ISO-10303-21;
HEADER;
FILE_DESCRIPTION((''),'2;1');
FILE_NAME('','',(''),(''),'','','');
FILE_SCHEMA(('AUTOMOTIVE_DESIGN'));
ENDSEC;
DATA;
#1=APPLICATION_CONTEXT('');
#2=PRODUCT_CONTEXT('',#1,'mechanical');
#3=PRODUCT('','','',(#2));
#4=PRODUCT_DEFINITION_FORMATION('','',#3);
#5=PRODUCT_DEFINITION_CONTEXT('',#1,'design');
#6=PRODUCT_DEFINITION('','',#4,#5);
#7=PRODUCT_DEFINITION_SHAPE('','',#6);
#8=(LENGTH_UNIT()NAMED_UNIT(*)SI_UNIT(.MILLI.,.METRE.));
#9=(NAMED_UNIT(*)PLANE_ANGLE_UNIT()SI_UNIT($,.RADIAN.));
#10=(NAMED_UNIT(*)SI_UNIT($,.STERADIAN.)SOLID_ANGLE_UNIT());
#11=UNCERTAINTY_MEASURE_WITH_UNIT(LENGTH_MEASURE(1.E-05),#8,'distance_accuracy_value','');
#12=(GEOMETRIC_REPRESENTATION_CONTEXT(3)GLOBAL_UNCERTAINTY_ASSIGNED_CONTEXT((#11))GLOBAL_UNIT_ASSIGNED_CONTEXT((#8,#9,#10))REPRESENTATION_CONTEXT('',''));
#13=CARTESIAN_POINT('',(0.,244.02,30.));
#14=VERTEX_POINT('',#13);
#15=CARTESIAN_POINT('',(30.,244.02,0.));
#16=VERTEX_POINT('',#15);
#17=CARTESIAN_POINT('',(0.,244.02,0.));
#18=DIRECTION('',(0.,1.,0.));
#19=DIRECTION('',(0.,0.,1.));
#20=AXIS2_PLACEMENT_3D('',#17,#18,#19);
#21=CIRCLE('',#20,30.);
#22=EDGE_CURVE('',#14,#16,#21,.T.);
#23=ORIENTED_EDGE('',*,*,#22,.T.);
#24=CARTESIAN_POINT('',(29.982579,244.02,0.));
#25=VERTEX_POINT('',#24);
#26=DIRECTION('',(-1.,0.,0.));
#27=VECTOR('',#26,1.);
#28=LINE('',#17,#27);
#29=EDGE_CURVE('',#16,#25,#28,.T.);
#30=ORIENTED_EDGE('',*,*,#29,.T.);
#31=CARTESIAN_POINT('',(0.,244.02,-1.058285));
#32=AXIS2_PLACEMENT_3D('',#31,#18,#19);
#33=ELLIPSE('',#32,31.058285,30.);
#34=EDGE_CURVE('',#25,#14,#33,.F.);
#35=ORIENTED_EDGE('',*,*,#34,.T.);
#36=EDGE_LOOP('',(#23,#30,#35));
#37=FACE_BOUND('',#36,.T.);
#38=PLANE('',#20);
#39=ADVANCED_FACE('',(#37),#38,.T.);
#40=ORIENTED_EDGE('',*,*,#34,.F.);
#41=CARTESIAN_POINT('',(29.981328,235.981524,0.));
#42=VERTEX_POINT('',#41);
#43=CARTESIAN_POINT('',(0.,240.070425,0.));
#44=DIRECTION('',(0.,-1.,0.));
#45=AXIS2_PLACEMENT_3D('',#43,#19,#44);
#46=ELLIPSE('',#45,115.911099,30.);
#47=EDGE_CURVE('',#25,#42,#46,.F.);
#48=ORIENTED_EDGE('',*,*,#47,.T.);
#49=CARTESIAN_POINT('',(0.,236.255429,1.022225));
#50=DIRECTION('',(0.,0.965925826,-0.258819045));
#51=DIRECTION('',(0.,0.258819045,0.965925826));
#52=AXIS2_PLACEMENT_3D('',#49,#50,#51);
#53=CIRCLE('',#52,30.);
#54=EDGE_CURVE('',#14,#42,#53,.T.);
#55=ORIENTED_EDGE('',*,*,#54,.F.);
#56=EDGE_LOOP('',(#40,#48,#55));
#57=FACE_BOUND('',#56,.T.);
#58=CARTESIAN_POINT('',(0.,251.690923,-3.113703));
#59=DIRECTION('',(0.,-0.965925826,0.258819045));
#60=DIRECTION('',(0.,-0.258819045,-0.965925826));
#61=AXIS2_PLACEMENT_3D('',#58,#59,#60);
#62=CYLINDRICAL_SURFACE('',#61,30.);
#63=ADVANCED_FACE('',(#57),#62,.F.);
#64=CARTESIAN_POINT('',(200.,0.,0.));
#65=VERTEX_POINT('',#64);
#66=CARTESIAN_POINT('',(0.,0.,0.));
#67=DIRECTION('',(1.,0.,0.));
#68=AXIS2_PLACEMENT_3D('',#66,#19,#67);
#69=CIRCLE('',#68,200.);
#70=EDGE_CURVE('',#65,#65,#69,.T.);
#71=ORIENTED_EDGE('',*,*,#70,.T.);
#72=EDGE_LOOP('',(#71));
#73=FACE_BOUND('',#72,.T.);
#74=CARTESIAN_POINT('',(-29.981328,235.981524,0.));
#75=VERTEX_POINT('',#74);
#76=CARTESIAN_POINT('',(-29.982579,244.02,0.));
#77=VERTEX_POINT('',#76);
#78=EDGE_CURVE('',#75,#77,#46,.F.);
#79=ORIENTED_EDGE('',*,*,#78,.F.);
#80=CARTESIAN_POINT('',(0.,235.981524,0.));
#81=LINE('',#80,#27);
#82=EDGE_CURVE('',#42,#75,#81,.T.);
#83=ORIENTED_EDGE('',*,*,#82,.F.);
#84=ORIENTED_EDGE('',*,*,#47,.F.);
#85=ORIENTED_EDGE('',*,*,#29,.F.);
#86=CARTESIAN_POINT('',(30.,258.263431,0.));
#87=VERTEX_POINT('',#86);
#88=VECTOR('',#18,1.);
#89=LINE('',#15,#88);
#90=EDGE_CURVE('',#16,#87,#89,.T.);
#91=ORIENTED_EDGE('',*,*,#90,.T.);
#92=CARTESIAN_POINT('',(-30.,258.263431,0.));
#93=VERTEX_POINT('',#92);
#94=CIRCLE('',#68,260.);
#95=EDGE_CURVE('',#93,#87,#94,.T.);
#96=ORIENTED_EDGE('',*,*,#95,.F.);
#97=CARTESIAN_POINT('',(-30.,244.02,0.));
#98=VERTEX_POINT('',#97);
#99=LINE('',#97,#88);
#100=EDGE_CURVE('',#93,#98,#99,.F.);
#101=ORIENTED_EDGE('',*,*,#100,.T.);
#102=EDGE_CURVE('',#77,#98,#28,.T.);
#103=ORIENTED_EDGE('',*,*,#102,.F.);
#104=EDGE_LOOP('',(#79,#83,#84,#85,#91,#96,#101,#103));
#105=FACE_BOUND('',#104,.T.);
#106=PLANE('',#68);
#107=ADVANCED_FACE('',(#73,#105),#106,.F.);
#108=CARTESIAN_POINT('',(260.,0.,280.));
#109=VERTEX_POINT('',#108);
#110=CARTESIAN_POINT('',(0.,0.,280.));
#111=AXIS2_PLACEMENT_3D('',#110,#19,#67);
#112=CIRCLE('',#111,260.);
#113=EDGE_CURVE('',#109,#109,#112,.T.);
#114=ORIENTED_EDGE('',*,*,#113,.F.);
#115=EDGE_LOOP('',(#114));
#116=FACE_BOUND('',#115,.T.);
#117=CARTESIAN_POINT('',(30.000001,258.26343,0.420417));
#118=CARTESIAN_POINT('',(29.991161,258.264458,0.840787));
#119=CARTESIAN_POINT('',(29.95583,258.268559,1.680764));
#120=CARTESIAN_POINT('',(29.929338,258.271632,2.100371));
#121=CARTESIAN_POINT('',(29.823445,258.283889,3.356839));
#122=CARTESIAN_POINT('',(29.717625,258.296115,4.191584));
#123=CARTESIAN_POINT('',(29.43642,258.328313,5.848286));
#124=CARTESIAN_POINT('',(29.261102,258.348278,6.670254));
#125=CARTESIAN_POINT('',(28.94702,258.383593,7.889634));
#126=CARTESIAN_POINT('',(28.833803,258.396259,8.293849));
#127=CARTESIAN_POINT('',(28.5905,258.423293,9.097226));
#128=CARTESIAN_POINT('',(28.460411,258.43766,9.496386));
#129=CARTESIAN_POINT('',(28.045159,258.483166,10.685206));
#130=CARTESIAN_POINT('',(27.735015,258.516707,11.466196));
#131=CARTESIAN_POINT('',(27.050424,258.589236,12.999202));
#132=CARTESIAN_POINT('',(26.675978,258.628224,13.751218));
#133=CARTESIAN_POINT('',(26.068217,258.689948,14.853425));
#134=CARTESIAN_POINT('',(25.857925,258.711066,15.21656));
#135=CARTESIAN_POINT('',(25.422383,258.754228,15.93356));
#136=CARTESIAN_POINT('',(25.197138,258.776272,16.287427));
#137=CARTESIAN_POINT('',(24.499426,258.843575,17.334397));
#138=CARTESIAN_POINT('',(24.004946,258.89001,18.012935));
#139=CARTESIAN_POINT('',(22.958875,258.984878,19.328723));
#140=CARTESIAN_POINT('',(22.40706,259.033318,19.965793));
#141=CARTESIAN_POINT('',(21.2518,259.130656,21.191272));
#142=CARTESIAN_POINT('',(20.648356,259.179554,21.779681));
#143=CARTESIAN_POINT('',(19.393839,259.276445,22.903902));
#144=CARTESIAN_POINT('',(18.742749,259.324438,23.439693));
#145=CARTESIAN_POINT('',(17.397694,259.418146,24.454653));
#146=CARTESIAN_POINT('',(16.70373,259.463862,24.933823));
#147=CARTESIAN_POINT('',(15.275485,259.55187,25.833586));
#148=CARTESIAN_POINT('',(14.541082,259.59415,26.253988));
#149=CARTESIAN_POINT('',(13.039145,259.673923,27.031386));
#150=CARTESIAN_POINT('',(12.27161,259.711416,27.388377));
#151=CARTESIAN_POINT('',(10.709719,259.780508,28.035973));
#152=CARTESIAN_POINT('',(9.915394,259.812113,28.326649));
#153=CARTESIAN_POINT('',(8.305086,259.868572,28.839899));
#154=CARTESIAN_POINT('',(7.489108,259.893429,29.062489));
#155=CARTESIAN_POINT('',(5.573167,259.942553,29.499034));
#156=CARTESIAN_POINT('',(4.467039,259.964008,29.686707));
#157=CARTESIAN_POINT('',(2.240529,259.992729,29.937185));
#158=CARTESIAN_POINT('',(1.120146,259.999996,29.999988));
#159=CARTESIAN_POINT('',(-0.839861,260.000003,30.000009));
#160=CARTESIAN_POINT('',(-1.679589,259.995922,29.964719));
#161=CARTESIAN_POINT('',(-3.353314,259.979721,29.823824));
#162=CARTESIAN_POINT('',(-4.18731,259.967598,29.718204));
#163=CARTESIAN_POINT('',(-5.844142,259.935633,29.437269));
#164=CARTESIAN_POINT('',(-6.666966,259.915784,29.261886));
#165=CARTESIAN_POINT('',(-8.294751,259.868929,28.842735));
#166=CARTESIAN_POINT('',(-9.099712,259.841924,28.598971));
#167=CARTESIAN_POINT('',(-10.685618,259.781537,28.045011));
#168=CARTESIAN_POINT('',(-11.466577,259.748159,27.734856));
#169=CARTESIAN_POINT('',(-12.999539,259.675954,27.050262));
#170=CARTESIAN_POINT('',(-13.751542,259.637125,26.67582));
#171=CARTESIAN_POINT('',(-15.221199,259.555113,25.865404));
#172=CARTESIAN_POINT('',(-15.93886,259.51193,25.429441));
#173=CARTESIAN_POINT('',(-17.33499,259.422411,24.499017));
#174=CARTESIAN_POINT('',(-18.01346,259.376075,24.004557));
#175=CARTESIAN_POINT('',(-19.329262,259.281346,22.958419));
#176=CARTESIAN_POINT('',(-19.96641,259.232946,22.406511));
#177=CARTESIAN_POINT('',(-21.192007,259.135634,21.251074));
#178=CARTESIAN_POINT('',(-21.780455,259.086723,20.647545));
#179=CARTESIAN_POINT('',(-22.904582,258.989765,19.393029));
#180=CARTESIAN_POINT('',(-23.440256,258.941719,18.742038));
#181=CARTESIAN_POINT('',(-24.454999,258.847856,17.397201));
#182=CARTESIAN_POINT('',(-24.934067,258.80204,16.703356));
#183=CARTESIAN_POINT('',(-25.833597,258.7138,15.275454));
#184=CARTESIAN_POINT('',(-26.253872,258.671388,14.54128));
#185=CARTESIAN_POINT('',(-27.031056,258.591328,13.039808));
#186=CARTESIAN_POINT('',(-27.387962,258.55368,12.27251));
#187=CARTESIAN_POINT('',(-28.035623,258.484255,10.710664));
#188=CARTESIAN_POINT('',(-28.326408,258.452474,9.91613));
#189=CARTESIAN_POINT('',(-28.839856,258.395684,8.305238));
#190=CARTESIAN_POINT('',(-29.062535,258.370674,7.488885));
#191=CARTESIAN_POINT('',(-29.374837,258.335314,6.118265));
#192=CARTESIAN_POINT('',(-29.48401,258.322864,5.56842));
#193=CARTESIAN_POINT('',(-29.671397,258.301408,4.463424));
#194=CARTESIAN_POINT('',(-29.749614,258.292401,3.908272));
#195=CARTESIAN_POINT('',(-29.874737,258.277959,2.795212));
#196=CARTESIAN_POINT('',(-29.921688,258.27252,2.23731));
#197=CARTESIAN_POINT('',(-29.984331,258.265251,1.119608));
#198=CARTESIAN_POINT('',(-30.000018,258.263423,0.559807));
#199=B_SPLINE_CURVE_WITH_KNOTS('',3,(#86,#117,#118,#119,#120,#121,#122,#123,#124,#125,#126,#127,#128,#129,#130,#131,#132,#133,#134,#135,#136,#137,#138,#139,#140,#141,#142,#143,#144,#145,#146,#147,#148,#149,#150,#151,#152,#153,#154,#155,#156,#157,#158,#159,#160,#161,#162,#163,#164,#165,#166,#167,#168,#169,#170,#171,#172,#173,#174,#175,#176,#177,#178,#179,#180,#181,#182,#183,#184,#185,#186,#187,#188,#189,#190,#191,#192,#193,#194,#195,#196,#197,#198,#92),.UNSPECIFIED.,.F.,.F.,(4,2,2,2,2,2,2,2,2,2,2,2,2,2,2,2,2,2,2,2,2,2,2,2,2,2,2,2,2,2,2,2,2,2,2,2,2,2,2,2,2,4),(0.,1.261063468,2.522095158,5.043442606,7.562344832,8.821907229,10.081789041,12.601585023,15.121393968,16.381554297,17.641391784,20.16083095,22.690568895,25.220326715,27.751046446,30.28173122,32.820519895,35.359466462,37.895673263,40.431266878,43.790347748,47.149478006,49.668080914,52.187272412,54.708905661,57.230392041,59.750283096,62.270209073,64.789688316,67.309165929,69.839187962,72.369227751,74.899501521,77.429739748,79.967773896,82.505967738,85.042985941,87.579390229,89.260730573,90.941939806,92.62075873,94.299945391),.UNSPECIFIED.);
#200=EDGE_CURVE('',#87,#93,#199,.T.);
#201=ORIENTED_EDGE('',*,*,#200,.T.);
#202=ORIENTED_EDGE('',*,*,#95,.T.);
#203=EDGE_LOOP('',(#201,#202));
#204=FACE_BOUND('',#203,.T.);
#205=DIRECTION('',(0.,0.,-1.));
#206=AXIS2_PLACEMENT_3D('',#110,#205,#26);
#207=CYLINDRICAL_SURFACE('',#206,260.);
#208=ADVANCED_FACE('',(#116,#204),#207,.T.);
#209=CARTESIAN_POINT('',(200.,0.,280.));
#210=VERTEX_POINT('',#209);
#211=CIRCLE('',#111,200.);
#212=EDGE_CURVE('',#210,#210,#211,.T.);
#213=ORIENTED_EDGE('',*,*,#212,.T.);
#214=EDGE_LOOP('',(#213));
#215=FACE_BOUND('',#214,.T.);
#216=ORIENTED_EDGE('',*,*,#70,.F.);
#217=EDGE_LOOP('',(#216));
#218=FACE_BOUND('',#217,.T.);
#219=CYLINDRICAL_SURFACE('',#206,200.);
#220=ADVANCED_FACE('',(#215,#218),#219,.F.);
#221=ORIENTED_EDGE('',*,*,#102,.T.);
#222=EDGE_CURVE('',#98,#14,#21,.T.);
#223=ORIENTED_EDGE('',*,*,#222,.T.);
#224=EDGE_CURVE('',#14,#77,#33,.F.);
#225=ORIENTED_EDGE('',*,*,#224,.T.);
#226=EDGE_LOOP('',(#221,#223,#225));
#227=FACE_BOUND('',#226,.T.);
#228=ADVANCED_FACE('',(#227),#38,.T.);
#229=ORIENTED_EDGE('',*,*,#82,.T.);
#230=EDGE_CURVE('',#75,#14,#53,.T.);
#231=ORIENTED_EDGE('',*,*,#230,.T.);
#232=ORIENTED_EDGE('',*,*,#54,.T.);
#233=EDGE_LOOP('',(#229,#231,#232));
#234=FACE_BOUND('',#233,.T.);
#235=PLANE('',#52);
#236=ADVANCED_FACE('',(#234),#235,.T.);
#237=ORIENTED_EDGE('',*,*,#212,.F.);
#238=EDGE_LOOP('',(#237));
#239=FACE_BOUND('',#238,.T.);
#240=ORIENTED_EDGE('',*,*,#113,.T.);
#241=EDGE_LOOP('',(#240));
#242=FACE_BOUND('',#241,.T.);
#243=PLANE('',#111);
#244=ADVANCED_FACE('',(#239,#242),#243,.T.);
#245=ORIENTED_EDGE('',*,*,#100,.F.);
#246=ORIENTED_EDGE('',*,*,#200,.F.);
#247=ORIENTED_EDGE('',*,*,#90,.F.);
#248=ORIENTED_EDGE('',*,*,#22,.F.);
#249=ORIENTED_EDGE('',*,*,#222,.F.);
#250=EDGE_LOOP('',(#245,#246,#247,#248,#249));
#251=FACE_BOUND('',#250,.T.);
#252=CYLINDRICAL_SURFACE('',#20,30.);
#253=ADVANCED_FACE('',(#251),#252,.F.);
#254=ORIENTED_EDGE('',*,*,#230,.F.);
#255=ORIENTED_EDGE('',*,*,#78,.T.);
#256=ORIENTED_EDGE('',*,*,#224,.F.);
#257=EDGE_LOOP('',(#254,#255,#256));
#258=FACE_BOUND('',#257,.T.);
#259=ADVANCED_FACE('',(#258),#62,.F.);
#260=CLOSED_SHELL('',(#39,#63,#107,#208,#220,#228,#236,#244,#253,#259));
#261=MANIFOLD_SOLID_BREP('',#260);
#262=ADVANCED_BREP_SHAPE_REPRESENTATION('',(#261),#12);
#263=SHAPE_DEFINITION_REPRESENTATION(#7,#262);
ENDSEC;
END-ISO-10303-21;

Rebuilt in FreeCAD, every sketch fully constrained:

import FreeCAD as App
import Part
import Sketcher

doc = App.newDocument("Part")
body = doc.addObject("PartDesign::Body", "Body")

sketch1 = body.newObject("Sketcher::SketchObject", "Sketch")
sketch1.AttachmentSupport = (doc.getObject("XY_Plane"), [""])
sketch1.MapMode = "FlatFace"
sketch1.addGeometry([
    Part.Circle(App.Vector(0, 0, 0), App.Vector(0, 0, 1), 260),
    Part.Circle(App.Vector(0, 0, 0), App.Vector(0, 0, 1), 200),
], False)
sketch1.addConstraint([
    Sketcher.Constraint("Coincident", 0, 3, -1, 1),
    Sketcher.Constraint("Coincident", 1, 3, -1, 1),
    Sketcher.Constraint("Diameter", 0, 520.0),
    Sketcher.Constraint("Diameter", 1, 400.0),
])
pad1 = body.newObject("PartDesign::Pad", "Pad")
pad1.Profile = sketch1
pad1.Length = 280

sketch2 = body.newObject("Sketcher::SketchObject", "Sketch001")
sketch2.AttachmentSupport = (doc.getObject("XZ_Plane"), [""])
sketch2.MapMode = "FlatFace"
sketch2.AttachmentOffset = App.Placement(App.Vector(0, 0, -260), App.Rotation())
sketch2.addGeometry(Part.Circle(App.Vector(0, 0, 0), App.Vector(0, 0, 1), 30), False)
sketch2.addConstraint([
    Sketcher.Constraint("Coincident", 0, 3, -1, 1),
    Sketcher.Constraint("Diameter", 0, 60.0),
])
pocket1 = body.newObject("PartDesign::Pocket", "Pocket")
pocket1.Profile = sketch2
pocket1.Length = 15.98
pocket1.Reversed = True

sketch3 = body.newObject("Sketcher::SketchObject", "Sketch002")
sketch3.Placement = App.Placement(App.Vector(0, 220.17376, -58.995381), App.Rotation(App.Vector(-1, 0, 0), App.Vector(0, 0.258819045, 0.965925826), App.Vector(0, 0.965925826, -0.258819045), "ZXY"))
sketch3.addGeometry(Part.Circle(App.Vector(0, 62.134798, 0), App.Vector(0, 0, 1), 30), False)
sketch3.addConstraint([
    Sketcher.Constraint("PointOnObject", 0, 3, -2),
    Sketcher.Constraint("Diameter", 0, 60.0),
    Sketcher.Constraint("DistanceY", -1, 1, 0, 3, 62.134798),
])
pocket2 = body.newObject("PartDesign::Pocket", "Pocket001")
pocket2.Profile = sketch3
pocket2.Length = 15.98
pocket2.Reversed = True

doc.recompute()
